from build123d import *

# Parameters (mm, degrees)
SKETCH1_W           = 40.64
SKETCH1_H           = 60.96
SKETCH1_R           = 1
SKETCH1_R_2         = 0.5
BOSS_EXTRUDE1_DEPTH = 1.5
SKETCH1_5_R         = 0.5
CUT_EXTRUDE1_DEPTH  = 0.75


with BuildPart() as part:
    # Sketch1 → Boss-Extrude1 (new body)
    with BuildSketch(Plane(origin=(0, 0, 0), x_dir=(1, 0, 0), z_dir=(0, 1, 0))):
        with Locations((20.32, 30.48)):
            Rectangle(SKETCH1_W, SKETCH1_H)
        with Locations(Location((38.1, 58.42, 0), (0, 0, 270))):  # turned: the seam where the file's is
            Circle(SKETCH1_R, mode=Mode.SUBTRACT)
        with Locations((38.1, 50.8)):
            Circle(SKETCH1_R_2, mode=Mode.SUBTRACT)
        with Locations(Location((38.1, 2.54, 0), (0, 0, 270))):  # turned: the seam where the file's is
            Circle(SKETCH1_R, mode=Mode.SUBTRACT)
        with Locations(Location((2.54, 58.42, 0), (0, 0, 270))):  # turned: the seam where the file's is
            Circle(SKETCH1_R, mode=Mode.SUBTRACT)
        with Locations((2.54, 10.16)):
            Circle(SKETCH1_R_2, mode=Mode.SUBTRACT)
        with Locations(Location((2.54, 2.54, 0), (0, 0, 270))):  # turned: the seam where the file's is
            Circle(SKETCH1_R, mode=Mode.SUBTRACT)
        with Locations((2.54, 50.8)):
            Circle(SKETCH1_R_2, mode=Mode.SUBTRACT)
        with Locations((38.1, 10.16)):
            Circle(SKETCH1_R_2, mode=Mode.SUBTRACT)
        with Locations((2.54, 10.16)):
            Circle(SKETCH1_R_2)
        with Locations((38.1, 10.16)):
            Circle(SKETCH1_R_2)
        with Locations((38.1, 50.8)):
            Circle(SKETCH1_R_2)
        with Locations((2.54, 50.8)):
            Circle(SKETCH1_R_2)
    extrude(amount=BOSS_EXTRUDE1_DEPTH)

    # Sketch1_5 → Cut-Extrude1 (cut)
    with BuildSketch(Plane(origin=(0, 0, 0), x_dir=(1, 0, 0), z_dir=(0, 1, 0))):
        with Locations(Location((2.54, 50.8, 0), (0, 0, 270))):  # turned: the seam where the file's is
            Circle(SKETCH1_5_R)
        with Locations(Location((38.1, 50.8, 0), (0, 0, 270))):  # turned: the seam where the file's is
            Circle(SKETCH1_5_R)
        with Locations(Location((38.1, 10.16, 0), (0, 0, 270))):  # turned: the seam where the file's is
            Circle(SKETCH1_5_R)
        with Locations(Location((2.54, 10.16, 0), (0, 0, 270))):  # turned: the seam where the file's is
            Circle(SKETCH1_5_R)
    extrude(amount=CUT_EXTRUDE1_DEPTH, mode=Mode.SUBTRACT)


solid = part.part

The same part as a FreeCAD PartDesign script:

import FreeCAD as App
import Part
import Sketcher

V = App.Vector
Q = App.Units.Quantity

doc = App.newDocument("Part")
params = doc.addObject("Spreadsheet::Sheet", "Params")
for row, (alias, value) in enumerate([
    ("sketch1_diameter", "2 mm"),
    ("sketch1_width", "40.64 mm"),
    ("sketch1_height", "60.96 mm"),
    ("pad1_length", "1.5 mm"),
    ("sketch2_diameter", "1 mm"),
    ("pocket1_length", "0.75 mm"),
], start=1):
    params.set(f"A{row}", alias)
    params.set(f"B{row}", "=" + value)
    params.setAlias(f"B{row}", alias)

body = doc.addObject("PartDesign::Body", "Body")

# Sketch on XZ plane
sketch1 = body.newObject("Sketcher::SketchObject", "Sketch")
sketch1.AttachmentSupport = (doc.getObject("XZ_Plane"), [""])
sketch1.MapMode = "FlatFace"
sketch1.addGeometry([
    Part.LineSegment(V(0, -61, 0), V(0, 0, 0)),  # 0
    Part.LineSegment(V(0, 0, 0), V(40.6, 0, 0)),  # 1
    Part.LineSegment(V(40.6, 0, 0), V(40.6, -61, 0)),  # 2
    Part.LineSegment(V(40.6, -61, 0), V(0, -61, 0)),  # 3
    Part.Circle(V(2.5, -2.5, 0), V(0, 0, 1), 1),  # 4
    Part.Circle(V(38.1, -2.5, 0), V(0, 0, 1), 1),  # 5
    Part.Circle(V(2.5, -58.4, 0), V(0, 0, 1), 1),  # 6
    Part.Circle(V(38.1, -58.4, 0), V(0, 0, 1), 1),  # 7
], False)
sketch1.addConstraint([
    Sketcher.Constraint("Coincident", 0, 2, 1, 1),
    Sketcher.Constraint("Coincident", 1, 2, 2, 1),
    Sketcher.Constraint("Coincident", 2, 2, 3, 1),
    Sketcher.Constraint("Coincident", 3, 2, 0, 1),
    Sketcher.Constraint("Vertical", 0),
    Sketcher.Constraint("Horizontal", 1),
    Sketcher.Constraint("Vertical", 2),
    Sketcher.Constraint("Horizontal", 3),
    Sketcher.Constraint("Coincident", 0, 2, -1, 1),
    Sketcher.Constraint("Equal", 4, 5),
    Sketcher.Constraint("Equal", 5, 6),
    Sketcher.Constraint("Equal", 6, 7),
    Sketcher.Constraint("Horizontal", 4, 3, 5, 3),
    Sketcher.Constraint("Horizontal", 6, 3, 7, 3),
    Sketcher.Constraint("Vertical", 4, 3, 6, 3),
    Sketcher.Constraint("Vertical", 5, 3, 7, 3),
    Sketcher.Constraint("Diameter", 4, Q("2 mm")),
    Sketcher.Constraint("DistanceX", 1, 1, 1, 2, Q("40.64 mm")),
    Sketcher.Constraint("DistanceY", 0, 1, 0, 2, Q("60.96 mm")),
    Sketcher.Constraint("DistanceX", -1, 1, 5, 3, Q("38.1 mm")),
    Sketcher.Constraint("DistanceX", 4, 3, 1, 2, Q("38.1 mm")),
    Sketcher.Constraint("DistanceY", 4, 3, -1, 1, Q("2.54 mm")),
    Sketcher.Constraint("DistanceY", 6, 3, -1, 1, Q("58.42 mm")),
])
sketch1.setExpression("Constraints[16]", "Params.sketch1_diameter")
sketch1.setExpression("Constraints[17]", "Params.sketch1_width")
sketch1.setExpression("Constraints[18]", "Params.sketch1_height")
pad1 = body.newObject("PartDesign::Pad", "Pad")
pad1.Profile = sketch1
pad1.setExpression("Length", "Params.pad1_length")
pad1.Reversed = True

# Sketch on XZ plane
sketch2 = body.newObject("Sketcher::SketchObject", "Sketch001")
sketch2.AttachmentSupport = (doc.getObject("XZ_Plane"), [""])
sketch2.MapMode = "FlatFace"
sketch2.addGeometry([
    Part.Circle(V(2.5, -50.8, 0), V(0, 0, 1), 0.5),
    Part.Circle(V(38.1, -50.8, 0), V(0, 0, 1), 0.5),
    Part.Circle(V(38.1, -10.2, 0), V(0, 0, 1), 0.5),
    Part.Circle(V(2.5, -10.2, 0), V(0, 0, 1), 0.5),
], False)
sketch2.addConstraint([
    Sketcher.Constraint("Equal", 0, 1),
    Sketcher.Constraint("Equal", 1, 2),
    Sketcher.Constraint("Equal", 2, 3),
    Sketcher.Constraint("Horizontal", 0, 3, 1, 3),
    Sketcher.Constraint("Horizontal", 2, 3, 3, 3),
    Sketcher.Constraint("Vertical", 1, 3, 2, 3),
    Sketcher.Constraint("Vertical", 0, 3, 3, 3),
    Sketcher.Constraint("Diameter", 0, Q("1 mm")),
    Sketcher.Constraint("DistanceY", 0, 3, -1, 1, Q("50.8 mm")),
    Sketcher.Constraint("DistanceX", -1, 1, 1, 3, Q("38.1 mm")),
    Sketcher.Constraint("DistanceX", -1, 1, 0, 3, Q("2.54 mm")),
    Sketcher.Constraint("DistanceY", 2, 3, -1, 1, Q("10.16 mm")),
])
sketch2.setExpression("Constraints[7]", "Params.sketch2_diameter")
pocket1 = body.newObject("PartDesign::Pocket", "Pocket")
pocket1.Profile = sketch2
pocket1.setExpression("Length", "Params.pocket1_length")

doc.recompute()
